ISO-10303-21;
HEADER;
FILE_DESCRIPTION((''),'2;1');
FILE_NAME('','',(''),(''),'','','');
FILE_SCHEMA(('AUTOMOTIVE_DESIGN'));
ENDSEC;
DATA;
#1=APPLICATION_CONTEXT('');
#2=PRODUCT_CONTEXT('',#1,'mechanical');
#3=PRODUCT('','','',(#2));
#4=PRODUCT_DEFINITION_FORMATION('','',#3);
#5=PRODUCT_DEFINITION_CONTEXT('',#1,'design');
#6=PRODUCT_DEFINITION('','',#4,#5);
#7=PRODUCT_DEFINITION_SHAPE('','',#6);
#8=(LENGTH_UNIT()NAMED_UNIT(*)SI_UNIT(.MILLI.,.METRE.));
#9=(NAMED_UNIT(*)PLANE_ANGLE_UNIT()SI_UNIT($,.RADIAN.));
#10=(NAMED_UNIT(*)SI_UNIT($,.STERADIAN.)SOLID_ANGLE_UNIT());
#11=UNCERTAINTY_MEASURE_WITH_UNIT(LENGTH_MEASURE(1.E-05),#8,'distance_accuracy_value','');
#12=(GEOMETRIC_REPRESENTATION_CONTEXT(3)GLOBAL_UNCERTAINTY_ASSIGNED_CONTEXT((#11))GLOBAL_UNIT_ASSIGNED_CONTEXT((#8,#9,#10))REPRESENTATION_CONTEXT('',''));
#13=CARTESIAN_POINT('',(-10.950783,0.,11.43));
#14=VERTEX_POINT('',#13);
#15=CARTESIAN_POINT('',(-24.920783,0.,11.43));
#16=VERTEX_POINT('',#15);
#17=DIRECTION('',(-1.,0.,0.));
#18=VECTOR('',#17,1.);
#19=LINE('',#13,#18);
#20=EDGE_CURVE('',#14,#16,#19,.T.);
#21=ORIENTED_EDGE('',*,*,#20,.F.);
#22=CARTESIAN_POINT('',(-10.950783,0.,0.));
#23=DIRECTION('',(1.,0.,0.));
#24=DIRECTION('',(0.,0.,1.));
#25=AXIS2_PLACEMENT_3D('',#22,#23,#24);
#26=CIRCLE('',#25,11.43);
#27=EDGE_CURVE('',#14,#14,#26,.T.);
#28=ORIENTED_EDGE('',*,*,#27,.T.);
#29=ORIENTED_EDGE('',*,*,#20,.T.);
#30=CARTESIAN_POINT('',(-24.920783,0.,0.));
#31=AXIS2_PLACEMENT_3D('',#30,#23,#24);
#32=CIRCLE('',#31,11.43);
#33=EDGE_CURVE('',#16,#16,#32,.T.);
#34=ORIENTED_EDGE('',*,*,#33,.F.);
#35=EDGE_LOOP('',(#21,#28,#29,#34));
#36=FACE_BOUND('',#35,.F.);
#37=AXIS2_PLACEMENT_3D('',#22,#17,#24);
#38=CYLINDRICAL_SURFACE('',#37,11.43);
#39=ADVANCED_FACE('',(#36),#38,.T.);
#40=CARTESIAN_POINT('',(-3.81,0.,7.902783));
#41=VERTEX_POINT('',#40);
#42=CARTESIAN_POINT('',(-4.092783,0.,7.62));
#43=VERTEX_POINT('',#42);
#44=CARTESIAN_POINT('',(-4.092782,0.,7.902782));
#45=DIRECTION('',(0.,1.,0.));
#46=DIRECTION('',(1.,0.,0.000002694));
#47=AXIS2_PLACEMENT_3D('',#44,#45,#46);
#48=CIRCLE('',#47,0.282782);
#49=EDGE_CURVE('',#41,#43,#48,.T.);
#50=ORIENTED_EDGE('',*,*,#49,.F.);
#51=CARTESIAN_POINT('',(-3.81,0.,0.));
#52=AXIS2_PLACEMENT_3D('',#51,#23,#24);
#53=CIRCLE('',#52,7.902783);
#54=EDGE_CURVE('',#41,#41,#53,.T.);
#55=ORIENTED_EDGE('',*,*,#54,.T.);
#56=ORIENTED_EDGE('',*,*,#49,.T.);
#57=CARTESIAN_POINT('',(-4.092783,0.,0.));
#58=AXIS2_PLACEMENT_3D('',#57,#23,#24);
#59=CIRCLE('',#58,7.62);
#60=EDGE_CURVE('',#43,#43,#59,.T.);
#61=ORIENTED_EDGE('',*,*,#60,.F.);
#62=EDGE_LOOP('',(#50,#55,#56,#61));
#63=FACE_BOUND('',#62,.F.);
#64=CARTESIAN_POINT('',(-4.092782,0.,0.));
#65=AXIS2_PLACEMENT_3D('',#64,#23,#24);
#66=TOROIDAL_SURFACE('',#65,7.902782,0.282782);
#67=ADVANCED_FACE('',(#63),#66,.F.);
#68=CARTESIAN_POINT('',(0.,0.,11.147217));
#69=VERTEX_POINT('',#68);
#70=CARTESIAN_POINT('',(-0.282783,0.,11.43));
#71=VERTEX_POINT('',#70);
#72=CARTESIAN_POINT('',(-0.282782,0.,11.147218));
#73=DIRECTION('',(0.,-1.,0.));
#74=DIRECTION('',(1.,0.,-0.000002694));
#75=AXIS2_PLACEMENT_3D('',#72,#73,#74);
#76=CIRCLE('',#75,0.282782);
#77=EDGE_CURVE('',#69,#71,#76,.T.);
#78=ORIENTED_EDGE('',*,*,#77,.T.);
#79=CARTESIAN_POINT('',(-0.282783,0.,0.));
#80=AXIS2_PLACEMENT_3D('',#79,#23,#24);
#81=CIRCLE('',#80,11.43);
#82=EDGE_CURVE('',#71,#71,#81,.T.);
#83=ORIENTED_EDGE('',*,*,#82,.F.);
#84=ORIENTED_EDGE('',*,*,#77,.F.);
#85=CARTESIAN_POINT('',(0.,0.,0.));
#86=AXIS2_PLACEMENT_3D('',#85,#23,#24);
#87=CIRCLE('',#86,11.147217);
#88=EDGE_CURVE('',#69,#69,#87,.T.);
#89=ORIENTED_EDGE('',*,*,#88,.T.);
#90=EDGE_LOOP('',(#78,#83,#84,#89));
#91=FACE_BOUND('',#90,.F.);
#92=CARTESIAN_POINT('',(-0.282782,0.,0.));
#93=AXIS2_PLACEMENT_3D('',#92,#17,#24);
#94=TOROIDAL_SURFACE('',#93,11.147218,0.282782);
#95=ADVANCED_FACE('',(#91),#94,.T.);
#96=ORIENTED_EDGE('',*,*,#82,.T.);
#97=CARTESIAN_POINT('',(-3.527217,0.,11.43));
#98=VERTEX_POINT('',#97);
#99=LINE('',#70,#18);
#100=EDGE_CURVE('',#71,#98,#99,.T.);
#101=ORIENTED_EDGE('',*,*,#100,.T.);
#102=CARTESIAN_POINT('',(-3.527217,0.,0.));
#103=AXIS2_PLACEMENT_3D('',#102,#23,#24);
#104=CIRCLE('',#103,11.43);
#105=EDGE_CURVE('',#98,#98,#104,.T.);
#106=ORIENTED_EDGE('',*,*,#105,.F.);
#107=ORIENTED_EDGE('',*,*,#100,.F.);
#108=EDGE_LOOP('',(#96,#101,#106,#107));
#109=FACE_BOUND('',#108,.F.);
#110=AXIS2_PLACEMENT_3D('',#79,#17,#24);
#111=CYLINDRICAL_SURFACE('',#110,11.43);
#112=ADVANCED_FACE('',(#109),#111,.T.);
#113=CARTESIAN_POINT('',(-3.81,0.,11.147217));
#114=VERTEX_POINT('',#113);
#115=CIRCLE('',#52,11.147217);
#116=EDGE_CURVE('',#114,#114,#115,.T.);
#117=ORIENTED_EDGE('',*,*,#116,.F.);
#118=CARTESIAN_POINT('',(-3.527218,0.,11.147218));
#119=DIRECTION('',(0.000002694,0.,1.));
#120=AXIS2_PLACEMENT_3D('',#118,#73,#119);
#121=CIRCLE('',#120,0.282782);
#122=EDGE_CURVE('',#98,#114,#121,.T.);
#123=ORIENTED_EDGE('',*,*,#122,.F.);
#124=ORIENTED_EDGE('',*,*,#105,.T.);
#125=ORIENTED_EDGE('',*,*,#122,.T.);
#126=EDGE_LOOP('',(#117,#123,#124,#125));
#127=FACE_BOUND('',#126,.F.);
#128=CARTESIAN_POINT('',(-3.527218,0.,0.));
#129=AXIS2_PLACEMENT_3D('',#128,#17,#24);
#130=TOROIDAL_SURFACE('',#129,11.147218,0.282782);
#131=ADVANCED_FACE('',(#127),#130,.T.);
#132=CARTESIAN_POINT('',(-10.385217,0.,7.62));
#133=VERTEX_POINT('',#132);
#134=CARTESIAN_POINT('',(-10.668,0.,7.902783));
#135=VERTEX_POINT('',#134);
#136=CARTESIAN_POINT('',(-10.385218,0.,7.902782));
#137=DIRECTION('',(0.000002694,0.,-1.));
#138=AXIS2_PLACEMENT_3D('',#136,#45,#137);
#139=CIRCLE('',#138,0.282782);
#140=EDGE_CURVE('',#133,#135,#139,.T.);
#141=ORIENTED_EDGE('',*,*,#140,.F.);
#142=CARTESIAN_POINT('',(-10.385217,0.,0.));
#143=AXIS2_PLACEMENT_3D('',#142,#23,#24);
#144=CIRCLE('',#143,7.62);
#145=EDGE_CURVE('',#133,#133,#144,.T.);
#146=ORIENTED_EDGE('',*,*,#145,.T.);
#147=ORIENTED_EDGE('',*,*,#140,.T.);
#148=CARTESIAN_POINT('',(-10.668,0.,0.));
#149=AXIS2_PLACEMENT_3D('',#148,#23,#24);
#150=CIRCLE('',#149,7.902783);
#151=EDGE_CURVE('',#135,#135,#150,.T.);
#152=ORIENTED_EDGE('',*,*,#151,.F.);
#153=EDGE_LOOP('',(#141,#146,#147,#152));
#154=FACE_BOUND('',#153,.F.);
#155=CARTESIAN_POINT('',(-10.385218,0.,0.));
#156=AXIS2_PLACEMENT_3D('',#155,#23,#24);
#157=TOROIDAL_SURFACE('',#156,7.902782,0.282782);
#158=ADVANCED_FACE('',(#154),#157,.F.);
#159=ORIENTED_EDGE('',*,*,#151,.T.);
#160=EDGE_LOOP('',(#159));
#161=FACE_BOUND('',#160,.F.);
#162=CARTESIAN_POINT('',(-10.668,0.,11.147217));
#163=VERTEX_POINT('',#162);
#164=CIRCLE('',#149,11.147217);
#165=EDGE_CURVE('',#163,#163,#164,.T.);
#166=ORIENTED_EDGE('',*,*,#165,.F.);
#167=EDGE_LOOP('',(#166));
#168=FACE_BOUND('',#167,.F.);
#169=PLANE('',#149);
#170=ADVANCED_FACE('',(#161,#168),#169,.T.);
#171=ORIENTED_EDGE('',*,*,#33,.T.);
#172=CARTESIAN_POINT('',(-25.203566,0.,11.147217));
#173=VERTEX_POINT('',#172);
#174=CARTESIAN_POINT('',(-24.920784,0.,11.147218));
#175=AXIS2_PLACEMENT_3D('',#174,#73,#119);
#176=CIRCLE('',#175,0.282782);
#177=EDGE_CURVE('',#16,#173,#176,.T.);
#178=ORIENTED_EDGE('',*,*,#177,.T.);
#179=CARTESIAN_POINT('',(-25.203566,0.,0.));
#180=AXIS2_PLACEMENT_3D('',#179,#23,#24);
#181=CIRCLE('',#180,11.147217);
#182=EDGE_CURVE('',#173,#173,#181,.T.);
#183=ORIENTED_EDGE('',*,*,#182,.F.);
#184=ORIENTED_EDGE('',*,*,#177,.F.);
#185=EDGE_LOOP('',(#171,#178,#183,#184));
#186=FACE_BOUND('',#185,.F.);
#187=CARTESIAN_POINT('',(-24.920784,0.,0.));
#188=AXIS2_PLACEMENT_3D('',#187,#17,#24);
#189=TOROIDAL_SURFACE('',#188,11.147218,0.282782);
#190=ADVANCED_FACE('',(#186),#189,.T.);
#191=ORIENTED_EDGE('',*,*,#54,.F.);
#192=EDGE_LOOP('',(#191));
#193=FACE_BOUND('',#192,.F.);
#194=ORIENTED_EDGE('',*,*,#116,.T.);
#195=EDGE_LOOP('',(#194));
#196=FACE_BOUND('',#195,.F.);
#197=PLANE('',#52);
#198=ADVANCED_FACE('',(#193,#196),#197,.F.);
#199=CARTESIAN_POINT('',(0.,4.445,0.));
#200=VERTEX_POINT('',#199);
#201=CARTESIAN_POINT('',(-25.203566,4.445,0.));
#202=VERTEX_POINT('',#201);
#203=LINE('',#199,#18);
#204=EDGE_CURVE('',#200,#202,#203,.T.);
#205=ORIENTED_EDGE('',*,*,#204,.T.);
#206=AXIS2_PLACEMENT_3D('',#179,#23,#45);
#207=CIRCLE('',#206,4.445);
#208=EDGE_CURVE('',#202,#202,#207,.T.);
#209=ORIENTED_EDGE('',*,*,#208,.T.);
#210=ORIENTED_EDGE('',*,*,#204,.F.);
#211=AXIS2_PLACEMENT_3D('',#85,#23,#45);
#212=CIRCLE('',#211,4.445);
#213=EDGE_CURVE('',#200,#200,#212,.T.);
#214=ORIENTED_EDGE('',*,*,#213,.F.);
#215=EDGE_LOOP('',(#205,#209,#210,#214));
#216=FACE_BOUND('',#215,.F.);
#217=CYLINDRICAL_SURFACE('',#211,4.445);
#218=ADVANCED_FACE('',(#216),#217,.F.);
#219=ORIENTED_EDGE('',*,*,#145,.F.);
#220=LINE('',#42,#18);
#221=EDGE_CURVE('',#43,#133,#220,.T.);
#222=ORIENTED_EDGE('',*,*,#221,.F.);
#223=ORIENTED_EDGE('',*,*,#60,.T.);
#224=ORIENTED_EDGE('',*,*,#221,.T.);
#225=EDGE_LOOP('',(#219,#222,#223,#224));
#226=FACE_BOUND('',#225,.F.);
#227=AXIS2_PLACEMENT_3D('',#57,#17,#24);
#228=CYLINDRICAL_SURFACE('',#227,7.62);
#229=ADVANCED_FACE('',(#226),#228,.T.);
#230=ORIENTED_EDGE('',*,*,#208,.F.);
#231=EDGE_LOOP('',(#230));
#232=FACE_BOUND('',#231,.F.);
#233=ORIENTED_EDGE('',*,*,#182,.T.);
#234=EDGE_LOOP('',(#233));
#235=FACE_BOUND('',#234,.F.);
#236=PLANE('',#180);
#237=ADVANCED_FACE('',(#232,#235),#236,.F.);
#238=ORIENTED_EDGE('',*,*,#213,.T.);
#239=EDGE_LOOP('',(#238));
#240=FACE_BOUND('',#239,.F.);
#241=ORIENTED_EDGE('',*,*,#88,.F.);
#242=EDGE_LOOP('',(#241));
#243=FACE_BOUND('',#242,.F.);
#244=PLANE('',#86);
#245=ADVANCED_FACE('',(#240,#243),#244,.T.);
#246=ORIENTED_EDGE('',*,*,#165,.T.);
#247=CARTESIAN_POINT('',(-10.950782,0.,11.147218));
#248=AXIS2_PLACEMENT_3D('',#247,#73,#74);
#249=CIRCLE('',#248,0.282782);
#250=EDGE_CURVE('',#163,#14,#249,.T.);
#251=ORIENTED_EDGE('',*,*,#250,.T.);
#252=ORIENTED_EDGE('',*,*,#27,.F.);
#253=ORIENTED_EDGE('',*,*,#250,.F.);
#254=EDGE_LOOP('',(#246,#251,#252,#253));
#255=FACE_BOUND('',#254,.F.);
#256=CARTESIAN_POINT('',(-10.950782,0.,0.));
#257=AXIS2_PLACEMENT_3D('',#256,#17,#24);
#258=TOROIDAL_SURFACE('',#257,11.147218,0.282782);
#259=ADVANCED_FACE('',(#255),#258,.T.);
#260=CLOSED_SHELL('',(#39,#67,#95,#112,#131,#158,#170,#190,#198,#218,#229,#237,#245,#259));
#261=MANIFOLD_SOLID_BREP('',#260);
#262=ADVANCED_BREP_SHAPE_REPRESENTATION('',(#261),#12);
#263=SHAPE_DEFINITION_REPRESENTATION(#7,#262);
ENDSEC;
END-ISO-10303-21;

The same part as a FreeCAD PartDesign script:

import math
import FreeCAD as App
import Part
import Sketcher
Q = App.Units.Quantity

doc = App.newDocument("Part")
body = doc.addObject("PartDesign::Body", "Body")

# Sketch on XZ plane
sketch1 = doc.addObject("Sketcher::SketchObject", "Sketch")
body.addObject(sketch1)
sketch1.AttachmentSupport = (doc.XZ_Plane, [""])
sketch1.MapMode = "FlatFace"
sketch1.addGeometry([
    Part.LineSegment(App.Vector(-25.2, 0, 0), App.Vector(0, 0, 0)),  # 0
    Part.LineSegment(App.Vector(0, 0, 0), App.Vector(0, 11.15, 0)),  # 1
    Part.ArcOfCircle(Part.Circle(App.Vector(-0.28, 11.15, 0), App.Vector(0, 0, 1), 0.28), math.radians(0), math.radians(90)),  # 2
    Part.LineSegment(App.Vector(-0.28, 11.43, 0), App.Vector(-3.53, 11.43, 0)),  # 3
    Part.ArcOfCircle(Part.Circle(App.Vector(-3.53, 11.15, 0), App.Vector(0, 0, 1), 0.28), math.radians(90), math.radians(180)),  # 4
    Part.LineSegment(App.Vector(-3.81, 11.15, 0), App.Vector(-3.81, 7.9, 0)),  # 5
    Part.ArcOfCircle(Part.Circle(App.Vector(-4.09, 7.9, 0), App.Vector(0, 0, 1), 0.28), math.radians(-90), math.radians(0)),  # 6
    Part.LineSegment(App.Vector(-4.09, 7.62, 0), App.Vector(-10.39, 7.62, 0)),  # 7
    Part.ArcOfCircle(Part.Circle(App.Vector(-10.39, 7.9, 0), App.Vector(0, 0, 1), 0.28), math.radians(180), math.radians(270)),  # 8
    Part.LineSegment(App.Vector(-10.67, 7.9, 0), App.Vector(-10.67, 11.15, 0)),  # 9
    Part.ArcOfCircle(Part.Circle(App.Vector(-10.95, 11.15, 0), App.Vector(0, 0, 1), 0.28), math.radians(0), math.radians(90)),  # 10
    Part.LineSegment(App.Vector(-10.95, 11.43, 0), App.Vector(-24.92, 11.43, 0)),  # 11
    Part.ArcOfCircle(Part.Circle(App.Vector(-24.92, 11.15, 0), App.Vector(0, 0, 1), 0.28), math.radians(90), math.radians(180)),  # 12
    Part.LineSegment(App.Vector(-25.2, 11.15, 0), App.Vector(-25.2, 0, 0)),  # 13
], False)
sketch1.addConstraint([
    Sketcher.Constraint("Coincident", 0, 2, 1, 1),
    Sketcher.Constraint("Coincident", 1, 2, 2, 1),
    Sketcher.Constraint("Coincident", 2, 2, 3, 1),
    Sketcher.Constraint("Coincident", 3, 2, 4, 1),
    Sketcher.Constraint("Coincident", 4, 2, 5, 1),
    Sketcher.Constraint("Coincident", 5, 2, 6, 2),
    Sketcher.Constraint("Coincident", 6, 1, 7, 1),
    Sketcher.Constraint("Coincident", 7, 2, 8, 2),
    Sketcher.Constraint("Coincident", 8, 1, 9, 1),
    Sketcher.Constraint("Coincident", 9, 2, 10, 1),
    Sketcher.Constraint("Coincident", 10, 2, 11, 1),
    Sketcher.Constraint("Coincident", 11, 2, 12, 1),
    Sketcher.Constraint("Coincident", 12, 2, 13, 1),
    Sketcher.Constraint("Coincident", 13, 2, 0, 1),
    Sketcher.Constraint("Horizontal", 0),
    Sketcher.Constraint("Vertical", 1),
    Sketcher.Constraint("Horizontal", 3),
    Sketcher.Constraint("Vertical", 5),
    Sketcher.Constraint("Horizontal", 7),
    Sketcher.Constraint("Vertical", 9),
    Sketcher.Constraint("Horizontal", 11),
    Sketcher.Constraint("Vertical", 13),
    Sketcher.Constraint("Coincident", 0, 2, -1, 1),
    Sketcher.Constraint("Equal", 2, 4),
    Sketcher.Constraint("Equal", 4, 6),
    Sketcher.Constraint("Equal", 6, 8),
    Sketcher.Constraint("Equal", 8, 10),
    Sketcher.Constraint("Equal", 10, 12),
    Sketcher.Constraint("Horizontal", 4, 3, 10, 3),
    Sketcher.Constraint("Horizontal", 12, 3, 1, 2),
    Sketcher.Constraint("Horizontal", 1, 2, 4, 2),
    Sketcher.Constraint("Horizontal", 8, 3, 5, 2),
    Sketcher.Constraint("Horizontal", 5, 2, 8, 1),
    Sketcher.Constraint("Horizontal", 4, 2, 9, 2),
    Sketcher.Constraint("Horizontal", 9, 2, 12, 2),
    Sketcher.Constraint("Vertical", 4, 3, 3, 2),
    Sketcher.Constraint("Vertical", 8, 3, 7, 2),
    Sketcher.Constraint("Vertical", 12, 3, 11, 2),
    Sketcher.Constraint("Equal", 3, 5),
    Sketcher.Constraint("DistanceX", 11, 2, 11, 1, Q("0.55 in")),
    Sketcher.Constraint("DistanceY", -1, 1, 6, 1, Q("0.3 in")),
    Sketcher.Constraint("DistanceY", -1, 1, 2, 2, Q("0.45 in")),
    Sketcher.Constraint("DistanceX", 4, 2, -1, 1, Q("0.15 in")),
    Sketcher.Constraint("DistanceX", 8, 1, -1, 1, Q("0.42 in")),
    Sketcher.Constraint("DistanceX", 12, 3, 10, 3, Q("0.5500001 in")),
    Sketcher.Constraint("Radius", 2, Q("0.282782 mm")),
    Sketcher.Constraint("DistanceX", 7, 2, 7, 1, Q("6.292434 mm")),
])
revolution = doc.addObject("PartDesign::Revolution", "Revolution")
body.addObject(revolution)
revolution.Profile = sketch1
revolution.ReferenceAxis = (sketch1, ["H_Axis"])
revolution.Angle = 360

# Sketch on YZ plane
sketch2 = doc.addObject("Sketcher::SketchObject", "Sketch001")
body.addObject(sketch2)
sketch2.AttachmentSupport = (doc.YZ_Plane, [""])
sketch2.MapMode = "FlatFace"
sketch2.addGeometry(Part.Circle(App.Vector(0, 0, 0), App.Vector(0, 0, 1), 4.4), False)
sketch2.addConstraint([
    Sketcher.Constraint("Coincident", 0, 3, -1, 1),
    Sketcher.Constraint("Diameter", 0, Q("0.35 in")),
])
pocket1 = doc.addObject("PartDesign::Pocket", "Pocket")
body.addObject(pocket1)
pocket1.Profile = sketch2
pocket1.Type = "ThroughAll"

doc.recompute()
